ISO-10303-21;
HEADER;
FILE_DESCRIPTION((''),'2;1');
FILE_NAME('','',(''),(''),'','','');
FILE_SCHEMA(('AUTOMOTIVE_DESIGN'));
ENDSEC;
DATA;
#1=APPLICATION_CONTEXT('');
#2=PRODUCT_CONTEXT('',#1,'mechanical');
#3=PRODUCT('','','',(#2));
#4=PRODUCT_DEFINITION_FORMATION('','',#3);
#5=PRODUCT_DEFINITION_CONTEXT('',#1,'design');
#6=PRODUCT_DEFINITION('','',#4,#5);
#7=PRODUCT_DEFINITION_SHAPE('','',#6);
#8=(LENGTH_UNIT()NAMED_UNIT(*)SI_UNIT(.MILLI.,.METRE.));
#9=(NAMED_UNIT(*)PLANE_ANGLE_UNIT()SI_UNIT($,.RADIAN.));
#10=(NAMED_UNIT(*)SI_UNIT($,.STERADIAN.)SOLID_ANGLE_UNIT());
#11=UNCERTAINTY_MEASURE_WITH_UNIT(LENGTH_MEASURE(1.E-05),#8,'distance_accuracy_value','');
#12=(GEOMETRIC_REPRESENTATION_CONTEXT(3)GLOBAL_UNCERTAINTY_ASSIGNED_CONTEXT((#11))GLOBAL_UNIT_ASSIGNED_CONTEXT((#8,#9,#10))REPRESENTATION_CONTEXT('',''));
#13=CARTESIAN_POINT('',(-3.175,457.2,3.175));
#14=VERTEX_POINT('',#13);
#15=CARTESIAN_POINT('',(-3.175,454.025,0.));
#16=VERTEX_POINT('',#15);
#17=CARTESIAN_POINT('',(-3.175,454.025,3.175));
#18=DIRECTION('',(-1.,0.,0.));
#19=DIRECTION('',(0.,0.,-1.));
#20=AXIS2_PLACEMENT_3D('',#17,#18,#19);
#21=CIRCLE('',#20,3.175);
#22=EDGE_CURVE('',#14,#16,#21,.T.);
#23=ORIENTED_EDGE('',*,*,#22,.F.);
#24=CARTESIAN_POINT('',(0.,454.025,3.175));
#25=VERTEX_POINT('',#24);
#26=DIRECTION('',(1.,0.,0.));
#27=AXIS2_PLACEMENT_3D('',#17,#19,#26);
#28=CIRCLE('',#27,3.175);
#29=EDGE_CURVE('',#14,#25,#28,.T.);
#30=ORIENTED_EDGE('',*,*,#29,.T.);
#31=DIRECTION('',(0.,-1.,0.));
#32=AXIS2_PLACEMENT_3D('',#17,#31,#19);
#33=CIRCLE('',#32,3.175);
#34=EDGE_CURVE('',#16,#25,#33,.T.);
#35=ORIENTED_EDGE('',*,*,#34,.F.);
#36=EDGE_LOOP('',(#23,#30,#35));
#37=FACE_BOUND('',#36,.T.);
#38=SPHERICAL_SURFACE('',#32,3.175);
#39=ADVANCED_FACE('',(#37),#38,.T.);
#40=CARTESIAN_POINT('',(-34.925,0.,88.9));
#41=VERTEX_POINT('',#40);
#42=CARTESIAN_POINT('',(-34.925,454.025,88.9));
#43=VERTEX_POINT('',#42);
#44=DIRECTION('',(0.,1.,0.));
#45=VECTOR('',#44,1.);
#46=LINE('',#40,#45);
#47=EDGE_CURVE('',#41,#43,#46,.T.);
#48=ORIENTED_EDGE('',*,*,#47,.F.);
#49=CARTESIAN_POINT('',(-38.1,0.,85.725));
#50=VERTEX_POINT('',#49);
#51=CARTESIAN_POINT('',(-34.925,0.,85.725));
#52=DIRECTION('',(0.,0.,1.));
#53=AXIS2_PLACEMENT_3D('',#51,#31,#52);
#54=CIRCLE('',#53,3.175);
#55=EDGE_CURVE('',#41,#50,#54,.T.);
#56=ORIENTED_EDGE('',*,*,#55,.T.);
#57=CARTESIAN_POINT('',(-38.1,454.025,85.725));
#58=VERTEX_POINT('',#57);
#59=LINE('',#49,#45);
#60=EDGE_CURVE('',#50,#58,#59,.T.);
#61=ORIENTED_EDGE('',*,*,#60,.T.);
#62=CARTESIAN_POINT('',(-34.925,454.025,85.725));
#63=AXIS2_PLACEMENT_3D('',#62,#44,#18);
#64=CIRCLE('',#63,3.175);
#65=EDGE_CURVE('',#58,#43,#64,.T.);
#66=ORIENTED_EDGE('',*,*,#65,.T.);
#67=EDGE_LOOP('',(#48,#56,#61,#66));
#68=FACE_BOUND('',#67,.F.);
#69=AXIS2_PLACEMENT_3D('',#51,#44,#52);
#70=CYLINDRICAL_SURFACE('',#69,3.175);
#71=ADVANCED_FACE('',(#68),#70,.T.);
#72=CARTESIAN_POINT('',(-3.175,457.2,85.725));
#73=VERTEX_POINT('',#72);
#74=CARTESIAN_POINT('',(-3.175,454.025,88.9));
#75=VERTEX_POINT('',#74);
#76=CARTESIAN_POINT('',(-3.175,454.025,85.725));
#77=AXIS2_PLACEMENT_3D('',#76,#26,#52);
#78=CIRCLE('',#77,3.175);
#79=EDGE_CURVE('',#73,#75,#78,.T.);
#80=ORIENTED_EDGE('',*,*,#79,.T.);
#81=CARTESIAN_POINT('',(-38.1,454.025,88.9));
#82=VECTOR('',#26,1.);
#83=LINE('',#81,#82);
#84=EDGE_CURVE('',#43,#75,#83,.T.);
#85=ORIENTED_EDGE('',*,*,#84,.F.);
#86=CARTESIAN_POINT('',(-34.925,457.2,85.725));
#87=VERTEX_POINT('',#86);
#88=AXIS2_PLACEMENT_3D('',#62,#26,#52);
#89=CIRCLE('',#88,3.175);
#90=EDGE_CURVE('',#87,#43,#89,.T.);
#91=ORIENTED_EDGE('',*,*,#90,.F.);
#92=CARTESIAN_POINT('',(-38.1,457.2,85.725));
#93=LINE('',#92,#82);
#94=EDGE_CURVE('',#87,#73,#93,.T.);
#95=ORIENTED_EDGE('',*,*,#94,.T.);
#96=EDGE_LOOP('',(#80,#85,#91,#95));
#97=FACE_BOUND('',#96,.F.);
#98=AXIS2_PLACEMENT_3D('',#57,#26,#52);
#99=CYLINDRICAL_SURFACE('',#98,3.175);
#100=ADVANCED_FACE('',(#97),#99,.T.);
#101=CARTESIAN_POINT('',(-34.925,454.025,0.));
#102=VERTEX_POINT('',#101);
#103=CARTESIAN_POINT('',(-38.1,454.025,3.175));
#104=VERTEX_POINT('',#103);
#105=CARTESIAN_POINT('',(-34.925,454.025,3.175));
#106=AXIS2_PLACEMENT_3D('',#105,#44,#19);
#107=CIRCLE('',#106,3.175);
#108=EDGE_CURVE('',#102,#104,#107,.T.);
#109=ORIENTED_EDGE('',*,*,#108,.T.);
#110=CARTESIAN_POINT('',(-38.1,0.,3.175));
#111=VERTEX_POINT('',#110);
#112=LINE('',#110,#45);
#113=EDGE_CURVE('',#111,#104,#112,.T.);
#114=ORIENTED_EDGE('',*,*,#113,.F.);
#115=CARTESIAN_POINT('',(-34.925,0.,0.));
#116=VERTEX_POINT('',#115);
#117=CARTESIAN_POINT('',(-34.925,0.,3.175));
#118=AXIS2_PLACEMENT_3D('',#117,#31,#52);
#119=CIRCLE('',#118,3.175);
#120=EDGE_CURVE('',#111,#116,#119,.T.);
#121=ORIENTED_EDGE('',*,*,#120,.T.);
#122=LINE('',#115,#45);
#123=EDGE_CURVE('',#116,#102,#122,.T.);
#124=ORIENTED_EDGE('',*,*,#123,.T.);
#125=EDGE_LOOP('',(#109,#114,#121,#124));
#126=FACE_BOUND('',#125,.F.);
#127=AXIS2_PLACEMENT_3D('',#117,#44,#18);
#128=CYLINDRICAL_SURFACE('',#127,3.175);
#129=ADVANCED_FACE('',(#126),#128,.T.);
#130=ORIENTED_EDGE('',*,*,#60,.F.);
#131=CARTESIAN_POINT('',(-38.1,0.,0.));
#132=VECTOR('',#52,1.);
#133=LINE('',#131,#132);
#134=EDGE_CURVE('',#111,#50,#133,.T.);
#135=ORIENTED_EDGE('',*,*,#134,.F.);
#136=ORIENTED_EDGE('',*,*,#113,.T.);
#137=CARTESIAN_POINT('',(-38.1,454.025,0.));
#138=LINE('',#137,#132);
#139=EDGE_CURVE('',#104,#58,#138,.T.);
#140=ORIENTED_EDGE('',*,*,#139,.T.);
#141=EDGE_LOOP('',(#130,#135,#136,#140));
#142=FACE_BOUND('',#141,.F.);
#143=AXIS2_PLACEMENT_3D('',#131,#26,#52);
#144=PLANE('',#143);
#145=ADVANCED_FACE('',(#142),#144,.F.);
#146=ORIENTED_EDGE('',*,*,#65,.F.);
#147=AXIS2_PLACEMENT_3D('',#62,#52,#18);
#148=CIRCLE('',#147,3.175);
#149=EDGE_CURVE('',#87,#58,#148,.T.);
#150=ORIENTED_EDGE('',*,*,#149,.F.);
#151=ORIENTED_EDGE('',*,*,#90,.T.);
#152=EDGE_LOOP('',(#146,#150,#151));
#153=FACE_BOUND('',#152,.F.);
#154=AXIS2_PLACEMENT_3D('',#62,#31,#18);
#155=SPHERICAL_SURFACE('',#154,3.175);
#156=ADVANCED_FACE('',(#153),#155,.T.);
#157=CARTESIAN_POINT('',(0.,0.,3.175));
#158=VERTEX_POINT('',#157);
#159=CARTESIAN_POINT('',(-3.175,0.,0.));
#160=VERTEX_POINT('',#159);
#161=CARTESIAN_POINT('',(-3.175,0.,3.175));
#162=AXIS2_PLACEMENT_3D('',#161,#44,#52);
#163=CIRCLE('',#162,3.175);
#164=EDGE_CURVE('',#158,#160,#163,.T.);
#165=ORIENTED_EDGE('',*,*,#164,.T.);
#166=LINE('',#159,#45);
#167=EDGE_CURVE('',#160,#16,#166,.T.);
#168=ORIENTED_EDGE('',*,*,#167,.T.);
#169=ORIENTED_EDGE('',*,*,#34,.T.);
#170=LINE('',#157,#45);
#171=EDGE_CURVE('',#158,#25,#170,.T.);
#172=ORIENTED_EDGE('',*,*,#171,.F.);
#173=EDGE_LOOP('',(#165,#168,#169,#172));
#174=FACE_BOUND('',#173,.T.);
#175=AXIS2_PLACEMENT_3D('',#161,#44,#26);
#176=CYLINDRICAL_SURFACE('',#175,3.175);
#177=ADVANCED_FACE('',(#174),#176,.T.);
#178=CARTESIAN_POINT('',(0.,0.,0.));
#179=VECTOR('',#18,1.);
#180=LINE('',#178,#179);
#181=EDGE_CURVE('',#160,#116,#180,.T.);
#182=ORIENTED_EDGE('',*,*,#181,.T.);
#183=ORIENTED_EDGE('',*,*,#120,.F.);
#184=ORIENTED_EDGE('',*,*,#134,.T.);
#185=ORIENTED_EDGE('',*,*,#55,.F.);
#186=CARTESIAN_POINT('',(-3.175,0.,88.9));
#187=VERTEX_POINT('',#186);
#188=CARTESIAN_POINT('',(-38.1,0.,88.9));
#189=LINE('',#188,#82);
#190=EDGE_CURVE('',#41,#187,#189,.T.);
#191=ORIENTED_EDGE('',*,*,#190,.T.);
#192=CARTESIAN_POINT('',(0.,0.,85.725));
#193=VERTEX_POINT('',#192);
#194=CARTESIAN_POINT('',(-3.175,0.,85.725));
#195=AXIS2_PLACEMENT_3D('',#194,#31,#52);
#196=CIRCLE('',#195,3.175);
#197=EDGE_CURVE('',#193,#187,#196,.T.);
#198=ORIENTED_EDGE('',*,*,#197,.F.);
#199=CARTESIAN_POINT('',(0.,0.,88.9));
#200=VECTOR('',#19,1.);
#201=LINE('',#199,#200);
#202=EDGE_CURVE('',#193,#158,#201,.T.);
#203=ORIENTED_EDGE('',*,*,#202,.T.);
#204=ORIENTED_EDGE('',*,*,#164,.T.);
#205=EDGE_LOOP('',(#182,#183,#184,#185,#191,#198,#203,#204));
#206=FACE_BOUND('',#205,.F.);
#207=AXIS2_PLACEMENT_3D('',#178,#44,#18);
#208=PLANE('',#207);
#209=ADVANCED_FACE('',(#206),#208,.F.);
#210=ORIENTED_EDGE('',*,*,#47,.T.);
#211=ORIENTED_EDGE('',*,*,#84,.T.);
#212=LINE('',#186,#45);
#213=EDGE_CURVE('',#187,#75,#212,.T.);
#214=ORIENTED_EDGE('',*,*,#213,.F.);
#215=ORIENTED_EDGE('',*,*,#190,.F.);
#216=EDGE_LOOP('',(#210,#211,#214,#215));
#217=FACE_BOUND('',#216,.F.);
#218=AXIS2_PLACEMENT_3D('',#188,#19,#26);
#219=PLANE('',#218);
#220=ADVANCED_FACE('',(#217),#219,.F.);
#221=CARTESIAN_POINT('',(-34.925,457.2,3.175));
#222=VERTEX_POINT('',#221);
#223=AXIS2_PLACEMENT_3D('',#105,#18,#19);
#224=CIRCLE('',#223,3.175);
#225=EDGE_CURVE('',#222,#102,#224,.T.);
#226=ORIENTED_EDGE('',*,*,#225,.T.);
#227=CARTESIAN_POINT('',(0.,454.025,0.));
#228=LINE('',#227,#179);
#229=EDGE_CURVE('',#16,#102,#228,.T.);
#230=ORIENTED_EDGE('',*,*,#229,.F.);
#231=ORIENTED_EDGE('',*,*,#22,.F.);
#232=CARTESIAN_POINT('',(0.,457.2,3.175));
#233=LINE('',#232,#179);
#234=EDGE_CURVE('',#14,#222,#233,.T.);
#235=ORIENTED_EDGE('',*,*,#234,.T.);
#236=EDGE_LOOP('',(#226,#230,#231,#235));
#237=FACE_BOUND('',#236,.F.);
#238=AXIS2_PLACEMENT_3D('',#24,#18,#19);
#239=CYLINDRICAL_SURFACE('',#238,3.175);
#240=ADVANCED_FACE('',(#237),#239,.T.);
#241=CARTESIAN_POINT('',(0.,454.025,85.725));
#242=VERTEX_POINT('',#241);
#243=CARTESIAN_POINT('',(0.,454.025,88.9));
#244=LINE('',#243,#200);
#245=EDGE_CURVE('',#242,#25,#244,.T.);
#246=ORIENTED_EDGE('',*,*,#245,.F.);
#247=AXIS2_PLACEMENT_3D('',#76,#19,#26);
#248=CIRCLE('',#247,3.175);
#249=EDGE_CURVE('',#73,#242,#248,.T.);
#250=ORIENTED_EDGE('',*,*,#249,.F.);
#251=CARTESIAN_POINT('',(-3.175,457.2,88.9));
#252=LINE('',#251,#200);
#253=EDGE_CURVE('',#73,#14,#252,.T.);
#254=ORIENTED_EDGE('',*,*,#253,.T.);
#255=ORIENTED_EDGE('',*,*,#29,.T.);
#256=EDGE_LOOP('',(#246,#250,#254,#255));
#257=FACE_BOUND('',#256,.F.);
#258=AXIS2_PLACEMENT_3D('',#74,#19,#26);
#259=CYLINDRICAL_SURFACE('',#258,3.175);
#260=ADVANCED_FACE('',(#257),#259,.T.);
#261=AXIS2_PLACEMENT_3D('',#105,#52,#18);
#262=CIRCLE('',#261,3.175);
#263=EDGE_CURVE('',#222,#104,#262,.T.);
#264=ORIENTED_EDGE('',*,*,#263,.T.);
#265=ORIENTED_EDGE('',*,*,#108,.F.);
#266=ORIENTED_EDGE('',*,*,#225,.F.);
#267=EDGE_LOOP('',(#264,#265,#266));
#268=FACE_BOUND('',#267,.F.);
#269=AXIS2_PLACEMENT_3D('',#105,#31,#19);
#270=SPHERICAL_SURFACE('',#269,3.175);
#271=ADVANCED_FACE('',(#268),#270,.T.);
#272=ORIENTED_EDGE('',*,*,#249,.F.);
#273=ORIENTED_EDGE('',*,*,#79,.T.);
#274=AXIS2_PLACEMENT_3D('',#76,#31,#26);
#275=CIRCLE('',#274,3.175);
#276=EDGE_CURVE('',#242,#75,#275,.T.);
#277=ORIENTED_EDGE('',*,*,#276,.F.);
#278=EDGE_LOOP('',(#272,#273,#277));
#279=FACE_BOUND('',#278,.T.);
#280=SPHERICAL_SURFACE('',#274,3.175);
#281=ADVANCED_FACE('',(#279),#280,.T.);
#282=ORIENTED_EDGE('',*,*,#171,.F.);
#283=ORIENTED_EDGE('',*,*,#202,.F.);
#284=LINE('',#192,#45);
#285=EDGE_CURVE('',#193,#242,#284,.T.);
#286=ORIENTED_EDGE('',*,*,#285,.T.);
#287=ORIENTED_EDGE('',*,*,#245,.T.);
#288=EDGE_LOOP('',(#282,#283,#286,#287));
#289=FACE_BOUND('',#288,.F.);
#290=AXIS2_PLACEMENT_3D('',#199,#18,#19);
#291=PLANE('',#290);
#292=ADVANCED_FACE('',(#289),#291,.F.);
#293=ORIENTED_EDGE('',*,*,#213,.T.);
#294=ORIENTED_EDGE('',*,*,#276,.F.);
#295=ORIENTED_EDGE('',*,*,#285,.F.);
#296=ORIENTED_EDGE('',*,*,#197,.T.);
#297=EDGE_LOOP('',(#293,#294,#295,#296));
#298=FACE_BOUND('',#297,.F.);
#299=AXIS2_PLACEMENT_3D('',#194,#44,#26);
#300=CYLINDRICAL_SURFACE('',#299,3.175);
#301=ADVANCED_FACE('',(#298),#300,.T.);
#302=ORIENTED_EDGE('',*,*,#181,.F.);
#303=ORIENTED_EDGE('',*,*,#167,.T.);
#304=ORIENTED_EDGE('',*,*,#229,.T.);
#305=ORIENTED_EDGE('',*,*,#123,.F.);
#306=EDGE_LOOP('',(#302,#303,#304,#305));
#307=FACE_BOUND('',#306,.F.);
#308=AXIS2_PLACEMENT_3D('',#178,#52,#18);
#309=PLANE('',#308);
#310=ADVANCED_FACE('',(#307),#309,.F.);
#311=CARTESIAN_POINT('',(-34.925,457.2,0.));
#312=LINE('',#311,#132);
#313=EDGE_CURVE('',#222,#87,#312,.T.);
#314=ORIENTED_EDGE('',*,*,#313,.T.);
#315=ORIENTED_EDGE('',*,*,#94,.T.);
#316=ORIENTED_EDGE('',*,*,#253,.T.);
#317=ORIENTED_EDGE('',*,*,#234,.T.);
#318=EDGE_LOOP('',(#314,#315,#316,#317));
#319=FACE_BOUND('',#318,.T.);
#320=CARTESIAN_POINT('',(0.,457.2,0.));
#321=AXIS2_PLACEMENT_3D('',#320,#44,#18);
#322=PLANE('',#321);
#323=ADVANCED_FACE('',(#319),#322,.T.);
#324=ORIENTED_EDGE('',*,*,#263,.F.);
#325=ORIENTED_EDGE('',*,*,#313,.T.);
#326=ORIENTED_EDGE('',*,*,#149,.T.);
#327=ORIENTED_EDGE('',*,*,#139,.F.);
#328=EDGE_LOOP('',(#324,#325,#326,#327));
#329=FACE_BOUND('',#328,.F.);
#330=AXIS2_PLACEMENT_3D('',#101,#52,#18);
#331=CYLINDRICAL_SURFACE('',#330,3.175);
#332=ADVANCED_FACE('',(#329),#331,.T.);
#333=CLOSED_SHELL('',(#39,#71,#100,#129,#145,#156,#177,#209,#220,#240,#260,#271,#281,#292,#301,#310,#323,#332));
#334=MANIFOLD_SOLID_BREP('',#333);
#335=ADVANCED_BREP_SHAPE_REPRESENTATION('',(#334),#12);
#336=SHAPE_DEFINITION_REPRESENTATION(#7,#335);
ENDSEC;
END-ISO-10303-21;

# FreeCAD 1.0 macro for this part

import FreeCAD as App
import Part
import Sketcher

V = App.Vector
Q = App.Units.Quantity


def edges_at(feature, points):
    """Names of the edges that pass closest to the given points."""
    edges = feature.Shape.Edges
    near = lambda p: min(range(len(edges)), key=lambda i: edges[i].distToShape(Part.Vertex(*p))[0])
    return sorted({f"Edge{near(p) + 1}" for p in points})

doc = App.newDocument("Part")
body = doc.addObject("PartDesign::Body", "Body")

sketch1 = doc.addObject("Sketcher::SketchObject", "Sketch")
body.addObject(sketch1)
sketch1.AttachmentSupport = (doc.XZ_Plane, [""])
sketch1.MapMode = "FlatFace"
sketch1.addGeometry([
    Part.LineSegment(V(0, 89, 0), V(0, 0, 0)),
    Part.LineSegment(V(0, 0, 0), V(-38, 0, 0)),
    Part.LineSegment(V(-38, 0, 0), V(-38, 89, 0)),
    Part.LineSegment(V(-38, 89, 0), V(0, 89, 0)),
], False)
sketch1.addConstraint([
    Sketcher.Constraint("Coincident", 0, 2, 1, 1),
    Sketcher.Constraint("Coincident", 1, 2, 2, 1),
    Sketcher.Constraint("Coincident", 2, 2, 3, 1),
    Sketcher.Constraint("Coincident", 3, 2, 0, 1),
    Sketcher.Constraint("Vertical", 0),
    Sketcher.Constraint("Horizontal", 1),
    Sketcher.Constraint("Vertical", 2),
    Sketcher.Constraint("Horizontal", 3),
    Sketcher.Constraint("Coincident", 0, 2, -1, 1),
    Sketcher.Constraint("DistanceX", 1, 2, 1, 1, Q("1.5 in")),
    Sketcher.Constraint("DistanceY", 0, 2, 0, 1, Q("3.5 in")),
])
pad1 = doc.addObject("PartDesign::Pad", "Pad")
body.addObject(pad1)
pad1.Profile = sketch1
pad1.Length = Q("18 in")
pad1.Reversed = True
doc.recompute()

fillet = doc.addObject("PartDesign::Fillet", "Fillet")
body.addObject(fillet)
fillet.Base = (pad1, edges_at(pad1, [
    (0, 228.6, 88.9),
    (-38.1, 228.6, 88.9),
    (0, 228.6, 0),
    (-38.1, 228.6, 0),
    (-19.05, 457.2, 0),
    (0, 457.2, 44.45),
    (-38.1, 457.2, 44.45),
    (-19.05, 457.2, 88.9),
]))
fillet.Radius = Q("0.125 in")

doc.recompute()
